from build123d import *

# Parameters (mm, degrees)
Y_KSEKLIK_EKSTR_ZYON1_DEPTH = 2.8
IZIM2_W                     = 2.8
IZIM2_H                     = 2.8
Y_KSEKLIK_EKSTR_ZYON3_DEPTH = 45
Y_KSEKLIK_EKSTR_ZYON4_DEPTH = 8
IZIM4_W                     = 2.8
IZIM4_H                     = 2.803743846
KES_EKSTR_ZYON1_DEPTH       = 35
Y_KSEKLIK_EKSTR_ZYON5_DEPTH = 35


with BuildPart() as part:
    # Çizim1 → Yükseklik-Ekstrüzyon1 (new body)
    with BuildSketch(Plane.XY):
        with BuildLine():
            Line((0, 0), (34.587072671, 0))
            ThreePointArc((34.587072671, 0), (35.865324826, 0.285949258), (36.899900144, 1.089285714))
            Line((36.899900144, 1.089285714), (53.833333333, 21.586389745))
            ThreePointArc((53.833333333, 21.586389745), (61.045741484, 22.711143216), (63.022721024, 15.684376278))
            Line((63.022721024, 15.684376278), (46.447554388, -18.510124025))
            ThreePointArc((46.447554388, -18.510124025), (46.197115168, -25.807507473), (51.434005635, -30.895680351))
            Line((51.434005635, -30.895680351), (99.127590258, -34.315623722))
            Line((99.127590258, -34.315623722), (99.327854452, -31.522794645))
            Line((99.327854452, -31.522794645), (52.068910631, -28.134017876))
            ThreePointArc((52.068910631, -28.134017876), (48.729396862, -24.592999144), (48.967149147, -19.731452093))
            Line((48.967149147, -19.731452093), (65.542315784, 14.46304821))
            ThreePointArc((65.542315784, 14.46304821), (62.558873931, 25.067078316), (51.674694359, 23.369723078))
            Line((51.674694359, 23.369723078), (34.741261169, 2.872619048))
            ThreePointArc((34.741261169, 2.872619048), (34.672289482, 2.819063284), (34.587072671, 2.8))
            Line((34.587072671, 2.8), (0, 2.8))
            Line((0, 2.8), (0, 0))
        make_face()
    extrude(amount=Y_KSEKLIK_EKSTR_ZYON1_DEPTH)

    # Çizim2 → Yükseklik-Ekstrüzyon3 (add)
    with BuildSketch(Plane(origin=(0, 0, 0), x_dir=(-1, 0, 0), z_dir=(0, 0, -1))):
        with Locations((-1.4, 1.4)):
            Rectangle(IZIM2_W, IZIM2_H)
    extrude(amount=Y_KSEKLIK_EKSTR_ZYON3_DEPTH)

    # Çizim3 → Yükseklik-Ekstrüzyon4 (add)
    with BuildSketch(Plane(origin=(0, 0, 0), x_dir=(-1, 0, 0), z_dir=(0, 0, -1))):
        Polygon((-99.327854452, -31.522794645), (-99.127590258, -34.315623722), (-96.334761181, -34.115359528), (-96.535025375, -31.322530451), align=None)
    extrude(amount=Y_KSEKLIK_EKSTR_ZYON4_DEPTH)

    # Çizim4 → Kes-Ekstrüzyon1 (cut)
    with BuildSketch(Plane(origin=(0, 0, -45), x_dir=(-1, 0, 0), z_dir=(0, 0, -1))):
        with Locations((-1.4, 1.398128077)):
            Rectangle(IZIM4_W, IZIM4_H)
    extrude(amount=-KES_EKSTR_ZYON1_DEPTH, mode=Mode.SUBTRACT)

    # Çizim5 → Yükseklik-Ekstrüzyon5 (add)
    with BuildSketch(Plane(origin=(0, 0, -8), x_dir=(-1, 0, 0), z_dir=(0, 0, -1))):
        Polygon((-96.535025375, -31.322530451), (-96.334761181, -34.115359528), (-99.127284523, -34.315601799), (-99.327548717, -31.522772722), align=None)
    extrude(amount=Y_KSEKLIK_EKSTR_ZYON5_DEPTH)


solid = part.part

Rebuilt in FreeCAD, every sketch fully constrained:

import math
import FreeCAD as App
import Part
import Sketcher

V = App.Vector
Q = App.Units.Quantity

doc = App.newDocument("Part")
body = doc.addObject("PartDesign::Body", "Body")

sketch1 = body.newObject("Sketcher::SketchObject", "Sketch")
sketch1.AttachmentSupport = (doc.getObject("XY_Plane"), [""])
sketch1.MapMode = "FlatFace"
sketch1.addGeometry([
    Part.LineSegment(V(0, 0, 0), V(34.59, 0, 0)),
    Part.ArcOfCircle(Part.Circle(V(34.59, 3, 0), V(0, 0, 1), 3), math.radians(-90), math.radians(-40)),
    Part.LineSegment(V(36.9, 1.09, 0), V(53.83, 21.59, 0)),
    Part.ArcOfCircle(Part.Circle(V(58.07, 18.08, 0), V(0, 0, 1), 5.5), math.radians(-26), math.radians(140)),
    Part.LineSegment(V(63.02, 15.68, 0), V(46.45, -18.51, 0)),
    Part.ArcOfCircle(Part.Circle(V(54.56, -22.44, 0), V(0, 0, 1), 9.01), math.radians(154), math.radians(250)),
    Part.LineSegment(V(51.43, -30.9, 0), V(99.13, -34.32, 0)),
    Part.LineSegment(V(99.13, -34.32, 0), V(99.33, -31.52, 0)),
    Part.LineSegment(V(99.33, -31.52, 0), V(52.07, -28.13, 0)),
    Part.ArcOfCircle(Part.Circle(V(54.56, -22.44, 0), V(0, 0, 1), 6.21), math.radians(154), math.radians(246)),
    Part.LineSegment(V(48.97, -19.73, 0), V(65.54, 14.46, 0)),
    Part.ArcOfCircle(Part.Circle(V(58.07, 18.08, 0), V(0, 0, 1), 8.3), math.radians(-26), math.radians(140)),
    Part.LineSegment(V(51.67, 23.37, 0), V(34.74, 2.87, 0)),
    Part.ArcOfCircle(Part.Circle(V(34.59, 3, 0), V(0, 0, 1), 0.2), math.radians(-90), math.radians(-40)),
    Part.LineSegment(V(34.59, 2.8, 0), V(0, 2.8, 0)),
    Part.LineSegment(V(0, 2.8, 0), V(0, 0, 0)),
], False)
sketch1.addConstraint([
    Sketcher.Constraint("Tangent", 0, 2, 1, 1),
    Sketcher.Constraint("Tangent", 1, 2, 2, 1),
    Sketcher.Constraint("Tangent", 2, 2, 3, 2),
    Sketcher.Constraint("Tangent", 3, 1, 4, 1),
    Sketcher.Constraint("Tangent", 4, 2, 5, 1),
    Sketcher.Constraint("Coincident", 5, 2, 6, 1),
    Sketcher.Constraint("Coincident", 6, 2, 7, 1),
    Sketcher.Constraint("Coincident", 7, 2, 8, 1),
    Sketcher.Constraint("Coincident", 8, 2, 9, 2),
    Sketcher.Constraint("Tangent", 9, 1, 10, 1),
    Sketcher.Constraint("Tangent", 10, 2, 11, 1),
    Sketcher.Constraint("Tangent", 11, 2, 12, 1),
    Sketcher.Constraint("Tangent", 12, 2, 13, 2),
    Sketcher.Constraint("Tangent", 13, 1, 14, 1),
    Sketcher.Constraint("Coincident", 14, 2, 15, 1),
    Sketcher.Constraint("Coincident", 15, 2, 0, 1),
    Sketcher.Constraint("Horizontal", 0),
    Sketcher.Constraint("Horizontal", 14),
    Sketcher.Constraint("Vertical", 15),
    Sketcher.Constraint("Coincident", 15, 2, -1, 1),
    Sketcher.Constraint("Coincident", 9, 3, 5, 3),
    Sketcher.Constraint("Coincident", 11, 3, 3, 3),
    Sketcher.Constraint("Coincident", 13, 3, 1, 3),
    Sketcher.Constraint("Perpendicular", 6, 7),
    Sketcher.Constraint("Perpendicular", 7, 8),
    Sketcher.Constraint("Parallel", 4, 10),
    Sketcher.Constraint("Parallel", 2, 12),
    Sketcher.Constraint("Radius", 1, Q("3 mm")),
    Sketcher.Constraint("Radius", 3, Q("5.5 mm")),
    Sketcher.Constraint("Radius", 11, Q("8.3 mm")),
    Sketcher.Constraint("Distance", 4, Q("38 mm")),
    Sketcher.Constraint("DistanceY", 6, 2, 3, 1, Q("50 mm")),
    Sketcher.Constraint("Distance", 7, Q("2.8 mm")),
    Sketcher.Constraint("DistanceY", 5, 3, 9, 1, Q("2.709999 mm")),
    Sketcher.Constraint("Radius", 5, Q("9.012907 mm")),
    Sketcher.Constraint("DistanceX", -1, 1, 1, 2, Q("36.8999 mm")),
    Sketcher.Constraint("DistanceX", 4, 2, 7, 2, Q("52.8803 mm")),
    Sketcher.Constraint("DistanceX", 0, 1, 0, 2, Q("34.587073 mm")),
    Sketcher.Constraint("DistanceY", 5, 3, -1, 1, Q("22.441451 mm")),
    Sketcher.Constraint("DistanceY", 5, 2, -1, 1, Q("30.89568 mm")),
])
pad1 = body.newObject("PartDesign::Pad", "Pad")
pad1.Profile = sketch1
pad1.Length = 2.8

sketch2 = body.newObject("Sketcher::SketchObject", "Sketch001")
sketch2.AttachmentSupport = (doc.getObject("XY_Plane"), [""])
sketch2.MapMode = "FlatFace"
sketch2.addGeometry([
    Part.LineSegment(V(2.8, 2.8, 0), V(2.8, 0, 0)),
    Part.LineSegment(V(2.8, 0, 0), V(0, 0, 0)),
    Part.LineSegment(V(0, 0, 0), V(0, 2.8, 0)),
    Part.LineSegment(V(0, 2.8, 0), V(2.8, 2.8, 0)),
], False)
sketch2.addConstraint([
    Sketcher.Constraint("Coincident", 0, 2, 1, 1),
    Sketcher.Constraint("Coincident", 1, 2, 2, 1),
    Sketcher.Constraint("Coincident", 2, 2, 3, 1),
    Sketcher.Constraint("Coincident", 3, 2, 0, 1),
    Sketcher.Constraint("Vertical", 0),
    Sketcher.Constraint("Horizontal", 1),
    Sketcher.Constraint("Vertical", 2),
    Sketcher.Constraint("Horizontal", 3),
    Sketcher.Constraint("Coincident", 1, 2, -1, 1),
    Sketcher.Constraint("Equal", 3, 0),
    Sketcher.Constraint("DistanceX", 1, 2, 1, 1, Q("2.8 mm")),
])
pad2 = body.newObject("PartDesign::Pad", "Pad001")
pad2.Profile = sketch2
pad2.Length = 45
pad2.Reversed = True

sketch3 = body.newObject("Sketcher::SketchObject", "Sketch002")
sketch3.AttachmentSupport = (doc.getObject("XY_Plane"), [""])
sketch3.MapMode = "FlatFace"
sketch3.addGeometry([
    Part.LineSegment(V(99.3, -31.5, 0), V(99.1, -34.3, 0)),
    Part.LineSegment(V(99.1, -34.3, 0), V(96.3, -34.1, 0)),
    Part.LineSegment(V(96.3, -34.1, 0), V(96.5, -31.3, 0)),
    Part.LineSegment(V(96.5, -31.3, 0), V(99.3, -31.5, 0)),
], False)
sketch3.addConstraint([
    Sketcher.Constraint("Coincident", 0, 2, 1, 1),
    Sketcher.Constraint("Coincident", 1, 2, 2, 1),
    Sketcher.Constraint("Coincident", 2, 2, 3, 1),
    Sketcher.Constraint("Coincident", 3, 2, 0, 1),
    Sketcher.Constraint("Perpendicular", 0, 1),
    Sketcher.Constraint("Perpendicular", 1, 2),
    Sketcher.Constraint("Perpendicular", 2, 3),
    Sketcher.Constraint("Equal", 0, 1),
    Sketcher.Constraint("Distance", 0, Q("2.8 mm")),
    Sketcher.Constraint("DistanceX", -1, 1, 0, 2, Q("99.12759 mm")),
    Sketcher.Constraint("DistanceX", -1, 1, 1, 2, Q("96.334761 mm")),
    Sketcher.Constraint("DistanceY", 1, 2, -1, 1, Q("34.11536 mm")),
])
pad3 = body.newObject("PartDesign::Pad", "Pad002")
pad3.Profile = sketch3
pad3.Length = 8
pad3.Reversed = True

sketch4 = body.newObject("Sketcher::SketchObject", "Sketch003")
sketch4.AttachmentSupport = (doc.getObject("XY_Plane"), [""])
sketch4.MapMode = "FlatFace"
sketch4.AttachmentOffset = App.Placement(V(0, 0, -45), App.Rotation())
sketch4.addGeometry([
    Part.LineSegment(V(2.8, 2.8, 0), V(2.8, 0, 0)),
    Part.LineSegment(V(2.8, 0, 0), V(0, 0, 0)),
    Part.LineSegment(V(0, 0, 0), V(0, 2.8, 0)),
    Part.LineSegment(V(0, 2.8, 0), V(2.8, 2.8, 0)),
], False)
sketch4.addConstraint([
    Sketcher.Constraint("Coincident", 0, 2, 1, 1),
    Sketcher.Constraint("Coincident", 1, 2, 2, 1),
    Sketcher.Constraint("Coincident", 2, 2, 3, 1),
    Sketcher.Constraint("Coincident", 3, 2, 0, 1),
    Sketcher.Constraint("Vertical", 0),
    Sketcher.Constraint("Horizontal", 1),
    Sketcher.Constraint("Vertical", 2),
    Sketcher.Constraint("Horizontal", 3),
    Sketcher.Constraint("PointOnObject", 1, 2, -2),
    Sketcher.Constraint("DistanceX", 1, 2, 1, 1, Q("2.8 mm")),
    Sketcher.Constraint("DistanceY", -1, 1, 2, 2, Q("2.8 mm")),
    Sketcher.Constraint("DistanceY", 0, 2, 0, 1, Q("2.803744 mm")),
])
pocket1 = body.newObject("PartDesign::Pocket", "Pocket")
pocket1.Profile = sketch4
pocket1.Length = 35
pocket1.Reversed = True

sketch5 = body.newObject("Sketcher::SketchObject", "Sketch004")
sketch5.AttachmentSupport = (doc.getObject("XY_Plane"), [""])
sketch5.MapMode = "FlatFace"
sketch5.AttachmentOffset = App.Placement(V(0, 0, -8), App.Rotation())
sketch5.addGeometry([
    Part.LineSegment(V(96.3, -34.1, 0), V(96.5, -31.3, 0)),
    Part.LineSegment(V(96.5, -31.3, 0), V(99.3, -31.5, 0)),
    Part.LineSegment(V(99.3, -31.5, 0), V(99.1, -34.3, 0)),
    Part.LineSegment(V(99.1, -34.3, 0), V(96.3, -34.1, 0)),
], False)
sketch5.addConstraint([
    Sketcher.Constraint("Coincident", 0, 2, 1, 1),
    Sketcher.Constraint("Coincident", 1, 2, 2, 1),
    Sketcher.Constraint("Coincident", 2, 2, 3, 1),
    Sketcher.Constraint("Coincident", 3, 2, 0, 1),
    Sketcher.Constraint("Perpendicular", 0, 1),
    Sketcher.Constraint("Perpendicular", 1, 2),
    Sketcher.Constraint("Perpendicular", 2, 3),
    Sketcher.Constraint("Distance", 0, Q("2.8 mm")),
    Sketcher.Constraint("DistanceY", 2, 2, -1, 1, Q("34.315602 mm")),
    Sketcher.Constraint("DistanceY", 0, 2, -1, 1, Q("31.32253 mm")),
    Sketcher.Constraint("DistanceX", -1, 1, 1, 2, Q("99.327549 mm")),
    Sketcher.Constraint("DistanceX", -1, 1, 3, 2, Q("96.334761 mm")),
])
pad4 = body.newObject("PartDesign::Pad", "Pad003")
pad4.Profile = sketch5
pad4.Length = 35
pad4.Reversed = True

doc.recompute()
